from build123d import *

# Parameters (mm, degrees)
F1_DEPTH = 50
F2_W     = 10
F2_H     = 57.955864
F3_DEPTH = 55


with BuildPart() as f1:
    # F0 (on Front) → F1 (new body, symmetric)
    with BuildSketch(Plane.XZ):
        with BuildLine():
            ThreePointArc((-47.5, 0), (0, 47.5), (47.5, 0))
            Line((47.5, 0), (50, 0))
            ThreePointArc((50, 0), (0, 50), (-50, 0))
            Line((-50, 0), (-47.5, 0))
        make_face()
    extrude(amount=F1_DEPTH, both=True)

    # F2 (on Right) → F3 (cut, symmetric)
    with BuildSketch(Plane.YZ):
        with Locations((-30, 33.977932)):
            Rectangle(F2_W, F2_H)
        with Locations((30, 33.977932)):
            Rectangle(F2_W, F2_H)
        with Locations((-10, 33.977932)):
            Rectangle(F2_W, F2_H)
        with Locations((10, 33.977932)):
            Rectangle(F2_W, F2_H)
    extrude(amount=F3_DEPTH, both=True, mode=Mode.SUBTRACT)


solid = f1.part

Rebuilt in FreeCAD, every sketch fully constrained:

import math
import FreeCAD as App
import Part
import Sketcher

V = App.Vector

doc = App.newDocument("Part")
params = doc.addObject("Spreadsheet::Sheet", "Params")
for row, (alias, value) in enumerate([
    ("sketch1_radius", "50 mm"),
    ("sketch1_radius2", "47.5 mm"),
    ("pad1_length", "100 mm"),
    ("sketch2_width", "10 mm"),
    ("pocket1_length", "110 mm"),
], start=1):
    params.set(f"A{row}", alias)
    params.set(f"B{row}", "=" + value)
    params.setAlias(f"B{row}", alias)

body = doc.addObject("PartDesign::Body", "Body")

# Sketch on XZ plane
sketch1 = doc.addObject("Sketcher::SketchObject", "Sketch")
body.addObject(sketch1)
sketch1.AttachmentSupport = (doc.XZ_Plane, [""])
sketch1.MapMode = "FlatFace"
sketch1.addGeometry([
    Part.ArcOfCircle(Part.Circle(V(0, 0, 0), V(0, 0, 1), 47.5), math.radians(0), math.radians(180)),
    Part.LineSegment(V(47.5, 0, 0), V(50, 0, 0)),
    Part.ArcOfCircle(Part.Circle(V(0, 0, 0), V(0, 0, 1), 50), math.radians(0), math.radians(180)),
    Part.LineSegment(V(-50, 0, 0), V(-47.5, 0, 0)),
], False)
sketch1.addConstraint([
    Sketcher.Constraint("Coincident", 0, 1, 1, 1),
    Sketcher.Constraint("Coincident", 1, 2, 2, 1),
    Sketcher.Constraint("Coincident", 2, 2, 3, 1),
    Sketcher.Constraint("Coincident", 3, 2, 0, 2),
    Sketcher.Constraint("Horizontal", 1),
    Sketcher.Constraint("Horizontal", 3),
    Sketcher.Constraint("Coincident", 0, 3, -1, 1),
    Sketcher.Constraint("Coincident", 2, 3, -1, 1),
    Sketcher.Constraint("PointOnObject", 0, 1, -1),
    Sketcher.Constraint("PointOnObject", 2, 2, -1),
    Sketcher.Constraint("Radius", 2, 50.0),
    Sketcher.Constraint("Radius", 0, 47.5),
])
sketch1.setExpression("Constraints[10]", "Params.sketch1_radius")
sketch1.setExpression("Constraints[11]", "Params.sketch1_radius2")
pad1 = doc.addObject("PartDesign::Pad", "Pad")
body.addObject(pad1)
pad1.Profile = sketch1
pad1.setExpression("Length", "Params.pad1_length")
pad1.Midplane = True

# Sketch on YZ plane
sketch2 = doc.addObject("Sketcher::SketchObject", "Sketch001")
body.addObject(sketch2)
sketch2.AttachmentSupport = (doc.YZ_Plane, [""])
sketch2.MapMode = "FlatFace"
sketch2.addGeometry([
    Part.LineSegment(V(-35, 63, 0), V(-35, 5, 0)),  # 0
    Part.LineSegment(V(-35, 5, 0), V(-25, 5, 0)),  # 1
    Part.LineSegment(V(-25, 5, 0), V(-25, 63, 0)),  # 2
    Part.LineSegment(V(-25, 63, 0), V(-35, 63, 0)),  # 3
    Part.LineSegment(V(25, 63, 0), V(25, 5, 0)),  # 4
    Part.LineSegment(V(25, 5, 0), V(35, 5, 0)),  # 5
    Part.LineSegment(V(35, 5, 0), V(35, 63, 0)),  # 6
    Part.LineSegment(V(35, 63, 0), V(25, 63, 0)),  # 7
    Part.LineSegment(V(-15, 63, 0), V(-15, 5, 0)),  # 8
    Part.LineSegment(V(-15, 5, 0), V(-5, 5, 0)),  # 9
    Part.LineSegment(V(-5, 5, 0), V(-5, 63, 0)),  # 10
    Part.LineSegment(V(-5, 63, 0), V(-15, 63, 0)),  # 11
    Part.LineSegment(V(5, 63, 0), V(5, 5, 0)),  # 12
    Part.LineSegment(V(5, 5, 0), V(15, 5, 0)),  # 13
    Part.LineSegment(V(15, 5, 0), V(15, 63, 0)),  # 14
    Part.LineSegment(V(15, 63, 0), V(5, 63, 0)),  # 15
], False)
sketch2.addConstraint([
    Sketcher.Constraint("Coincident", 0, 2, 1, 1),
    Sketcher.Constraint("Coincident", 1, 2, 2, 1),
    Sketcher.Constraint("Coincident", 2, 2, 3, 1),
    Sketcher.Constraint("Coincident", 3, 2, 0, 1),
    Sketcher.Constraint("Coincident", 4, 2, 5, 1),
    Sketcher.Constraint("Coincident", 5, 2, 6, 1),
    Sketcher.Constraint("Coincident", 6, 2, 7, 1),
    Sketcher.Constraint("Coincident", 7, 2, 4, 1),
    Sketcher.Constraint("Coincident", 8, 2, 9, 1),
    Sketcher.Constraint("Coincident", 9, 2, 10, 1),
    Sketcher.Constraint("Coincident", 10, 2, 11, 1),
    Sketcher.Constraint("Coincident", 11, 2, 8, 1),
    Sketcher.Constraint("Coincident", 12, 2, 13, 1),
    Sketcher.Constraint("Coincident", 13, 2, 14, 1),
    Sketcher.Constraint("Coincident", 14, 2, 15, 1),
    Sketcher.Constraint("Coincident", 15, 2, 12, 1),
    Sketcher.Constraint("Vertical", 0),
    Sketcher.Constraint("Horizontal", 1),
    Sketcher.Constraint("Vertical", 2),
    Sketcher.Constraint("Horizontal", 3),
    Sketcher.Constraint("Vertical", 4),
    Sketcher.Constraint("Horizontal", 5),
    Sketcher.Constraint("Vertical", 6),
    Sketcher.Constraint("Horizontal", 7),
    Sketcher.Constraint("Vertical", 8),
    Sketcher.Constraint("Horizontal", 9),
    Sketcher.Constraint("Vertical", 10),
    Sketcher.Constraint("Horizontal", 11),
    Sketcher.Constraint("Vertical", 12),
    Sketcher.Constraint("Horizontal", 13),
    Sketcher.Constraint("Vertical", 14),
    Sketcher.Constraint("Horizontal", 15),
    Sketcher.Constraint("Symmetric", 1, 2, 4, 2, -2),
    Sketcher.Constraint("Symmetric", 3, 2, 6, 2, -2),
    Sketcher.Constraint("Symmetric", 9, 2, 12, 2, -2),
    Sketcher.Constraint("Symmetric", 11, 2, 14, 2, -2),
    Sketcher.Constraint("Horizontal", 5, 2, 8, 2),
    Sketcher.Constraint("Horizontal", 7, 2, 10, 2),
    Sketcher.Constraint("Equal", 7, 9),
    Sketcher.Constraint("DistanceX", 1, 1, 1, 2, 10.0),
    Sketcher.Constraint("DistanceX", 0, 2, -1, 1, 35.0),
    Sketcher.Constraint("DistanceY", -1, 1, 0, 2, 5.0),
    Sketcher.Constraint("DistanceX", 8, 2, -1, 1, 15.0),
    Sketcher.Constraint("DistanceY", 0, 2, 0, 1, 57.955864),
])
sketch2.setExpression("Constraints[39]", "Params.sketch2_width")
pocket1 = doc.addObject("PartDesign::Pocket", "Pocket")
body.addObject(pocket1)
pocket1.Profile = sketch2
pocket1.setExpression("Length", "Params.pocket1_length")
pocket1.Midplane = True

doc.recompute()
